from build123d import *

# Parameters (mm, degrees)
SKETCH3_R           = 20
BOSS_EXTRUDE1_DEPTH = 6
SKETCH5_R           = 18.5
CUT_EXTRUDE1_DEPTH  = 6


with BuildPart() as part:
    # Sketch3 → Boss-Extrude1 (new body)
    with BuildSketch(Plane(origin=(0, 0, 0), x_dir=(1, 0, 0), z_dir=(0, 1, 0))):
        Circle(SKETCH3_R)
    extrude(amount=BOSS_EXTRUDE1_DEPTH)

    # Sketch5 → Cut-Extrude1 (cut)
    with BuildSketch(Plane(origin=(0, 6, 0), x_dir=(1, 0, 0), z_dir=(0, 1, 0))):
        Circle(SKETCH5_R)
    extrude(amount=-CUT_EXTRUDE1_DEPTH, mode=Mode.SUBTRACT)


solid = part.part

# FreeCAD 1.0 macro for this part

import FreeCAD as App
import Part
import Sketcher

V = App.Vector
Q = App.Units.Quantity

doc = App.newDocument("Part")
params = doc.addObject("Spreadsheet::Sheet", "Params")
for row, (alias, value) in enumerate([
    ("sketch1_diameter", "40 mm"),
    ("pad1_length", "6 mm"),
    ("sketch2_diameter", "37 mm"),
    ("pocket1_length", "6 mm"),
], start=1):
    params.set(f"A{row}", alias)
    params.set(f"B{row}", "=" + value)
    params.setAlias(f"B{row}", alias)

body = doc.addObject("PartDesign::Body", "Body")

sketch1 = body.newObject("Sketcher::SketchObject", "Sketch")
sketch1.AttachmentSupport = (doc.getObject("XZ_Plane"), [""])
sketch1.MapMode = "FlatFace"
sketch1.addGeometry(Part.Circle(V(0, 0, 0), V(0, 0, 1), 20), False)
sketch1.addConstraint([
    Sketcher.Constraint("Coincident", 0, 3, -1, 1),
    Sketcher.Constraint("Diameter", 0, Q("40 mm")),
])
sketch1.setExpression("Constraints[1]", "Params.sketch1_diameter")
pad1 = body.newObject("PartDesign::Pad", "Pad")
pad1.Profile = sketch1
pad1.setExpression("Length", "Params.pad1_length")
pad1.Reversed = True

sketch2 = body.newObject("Sketcher::SketchObject", "Sketch001")
sketch2.AttachmentSupport = (doc.getObject("XZ_Plane"), [""])
sketch2.MapMode = "FlatFace"
sketch2.AttachmentOffset = App.Placement(V(0, 0, -6), App.Rotation())
sketch2.addGeometry(Part.Circle(V(0, 0, 0), V(0, 0, 1), 18.5), False)
sketch2.addConstraint([
    Sketcher.Constraint("Coincident", 0, 3, -1, 1),
    Sketcher.Constraint("Diameter", 0, Q("37 mm")),
])
sketch2.setExpression("Constraints[1]", "Params.sketch2_diameter")
pocket1 = body.newObject("PartDesign::Pocket", "Pocket")
pocket1.Profile = sketch2
pocket1.setExpression("Length", "Params.pocket1_length")
pocket1.Reversed = True

doc.recompute()
